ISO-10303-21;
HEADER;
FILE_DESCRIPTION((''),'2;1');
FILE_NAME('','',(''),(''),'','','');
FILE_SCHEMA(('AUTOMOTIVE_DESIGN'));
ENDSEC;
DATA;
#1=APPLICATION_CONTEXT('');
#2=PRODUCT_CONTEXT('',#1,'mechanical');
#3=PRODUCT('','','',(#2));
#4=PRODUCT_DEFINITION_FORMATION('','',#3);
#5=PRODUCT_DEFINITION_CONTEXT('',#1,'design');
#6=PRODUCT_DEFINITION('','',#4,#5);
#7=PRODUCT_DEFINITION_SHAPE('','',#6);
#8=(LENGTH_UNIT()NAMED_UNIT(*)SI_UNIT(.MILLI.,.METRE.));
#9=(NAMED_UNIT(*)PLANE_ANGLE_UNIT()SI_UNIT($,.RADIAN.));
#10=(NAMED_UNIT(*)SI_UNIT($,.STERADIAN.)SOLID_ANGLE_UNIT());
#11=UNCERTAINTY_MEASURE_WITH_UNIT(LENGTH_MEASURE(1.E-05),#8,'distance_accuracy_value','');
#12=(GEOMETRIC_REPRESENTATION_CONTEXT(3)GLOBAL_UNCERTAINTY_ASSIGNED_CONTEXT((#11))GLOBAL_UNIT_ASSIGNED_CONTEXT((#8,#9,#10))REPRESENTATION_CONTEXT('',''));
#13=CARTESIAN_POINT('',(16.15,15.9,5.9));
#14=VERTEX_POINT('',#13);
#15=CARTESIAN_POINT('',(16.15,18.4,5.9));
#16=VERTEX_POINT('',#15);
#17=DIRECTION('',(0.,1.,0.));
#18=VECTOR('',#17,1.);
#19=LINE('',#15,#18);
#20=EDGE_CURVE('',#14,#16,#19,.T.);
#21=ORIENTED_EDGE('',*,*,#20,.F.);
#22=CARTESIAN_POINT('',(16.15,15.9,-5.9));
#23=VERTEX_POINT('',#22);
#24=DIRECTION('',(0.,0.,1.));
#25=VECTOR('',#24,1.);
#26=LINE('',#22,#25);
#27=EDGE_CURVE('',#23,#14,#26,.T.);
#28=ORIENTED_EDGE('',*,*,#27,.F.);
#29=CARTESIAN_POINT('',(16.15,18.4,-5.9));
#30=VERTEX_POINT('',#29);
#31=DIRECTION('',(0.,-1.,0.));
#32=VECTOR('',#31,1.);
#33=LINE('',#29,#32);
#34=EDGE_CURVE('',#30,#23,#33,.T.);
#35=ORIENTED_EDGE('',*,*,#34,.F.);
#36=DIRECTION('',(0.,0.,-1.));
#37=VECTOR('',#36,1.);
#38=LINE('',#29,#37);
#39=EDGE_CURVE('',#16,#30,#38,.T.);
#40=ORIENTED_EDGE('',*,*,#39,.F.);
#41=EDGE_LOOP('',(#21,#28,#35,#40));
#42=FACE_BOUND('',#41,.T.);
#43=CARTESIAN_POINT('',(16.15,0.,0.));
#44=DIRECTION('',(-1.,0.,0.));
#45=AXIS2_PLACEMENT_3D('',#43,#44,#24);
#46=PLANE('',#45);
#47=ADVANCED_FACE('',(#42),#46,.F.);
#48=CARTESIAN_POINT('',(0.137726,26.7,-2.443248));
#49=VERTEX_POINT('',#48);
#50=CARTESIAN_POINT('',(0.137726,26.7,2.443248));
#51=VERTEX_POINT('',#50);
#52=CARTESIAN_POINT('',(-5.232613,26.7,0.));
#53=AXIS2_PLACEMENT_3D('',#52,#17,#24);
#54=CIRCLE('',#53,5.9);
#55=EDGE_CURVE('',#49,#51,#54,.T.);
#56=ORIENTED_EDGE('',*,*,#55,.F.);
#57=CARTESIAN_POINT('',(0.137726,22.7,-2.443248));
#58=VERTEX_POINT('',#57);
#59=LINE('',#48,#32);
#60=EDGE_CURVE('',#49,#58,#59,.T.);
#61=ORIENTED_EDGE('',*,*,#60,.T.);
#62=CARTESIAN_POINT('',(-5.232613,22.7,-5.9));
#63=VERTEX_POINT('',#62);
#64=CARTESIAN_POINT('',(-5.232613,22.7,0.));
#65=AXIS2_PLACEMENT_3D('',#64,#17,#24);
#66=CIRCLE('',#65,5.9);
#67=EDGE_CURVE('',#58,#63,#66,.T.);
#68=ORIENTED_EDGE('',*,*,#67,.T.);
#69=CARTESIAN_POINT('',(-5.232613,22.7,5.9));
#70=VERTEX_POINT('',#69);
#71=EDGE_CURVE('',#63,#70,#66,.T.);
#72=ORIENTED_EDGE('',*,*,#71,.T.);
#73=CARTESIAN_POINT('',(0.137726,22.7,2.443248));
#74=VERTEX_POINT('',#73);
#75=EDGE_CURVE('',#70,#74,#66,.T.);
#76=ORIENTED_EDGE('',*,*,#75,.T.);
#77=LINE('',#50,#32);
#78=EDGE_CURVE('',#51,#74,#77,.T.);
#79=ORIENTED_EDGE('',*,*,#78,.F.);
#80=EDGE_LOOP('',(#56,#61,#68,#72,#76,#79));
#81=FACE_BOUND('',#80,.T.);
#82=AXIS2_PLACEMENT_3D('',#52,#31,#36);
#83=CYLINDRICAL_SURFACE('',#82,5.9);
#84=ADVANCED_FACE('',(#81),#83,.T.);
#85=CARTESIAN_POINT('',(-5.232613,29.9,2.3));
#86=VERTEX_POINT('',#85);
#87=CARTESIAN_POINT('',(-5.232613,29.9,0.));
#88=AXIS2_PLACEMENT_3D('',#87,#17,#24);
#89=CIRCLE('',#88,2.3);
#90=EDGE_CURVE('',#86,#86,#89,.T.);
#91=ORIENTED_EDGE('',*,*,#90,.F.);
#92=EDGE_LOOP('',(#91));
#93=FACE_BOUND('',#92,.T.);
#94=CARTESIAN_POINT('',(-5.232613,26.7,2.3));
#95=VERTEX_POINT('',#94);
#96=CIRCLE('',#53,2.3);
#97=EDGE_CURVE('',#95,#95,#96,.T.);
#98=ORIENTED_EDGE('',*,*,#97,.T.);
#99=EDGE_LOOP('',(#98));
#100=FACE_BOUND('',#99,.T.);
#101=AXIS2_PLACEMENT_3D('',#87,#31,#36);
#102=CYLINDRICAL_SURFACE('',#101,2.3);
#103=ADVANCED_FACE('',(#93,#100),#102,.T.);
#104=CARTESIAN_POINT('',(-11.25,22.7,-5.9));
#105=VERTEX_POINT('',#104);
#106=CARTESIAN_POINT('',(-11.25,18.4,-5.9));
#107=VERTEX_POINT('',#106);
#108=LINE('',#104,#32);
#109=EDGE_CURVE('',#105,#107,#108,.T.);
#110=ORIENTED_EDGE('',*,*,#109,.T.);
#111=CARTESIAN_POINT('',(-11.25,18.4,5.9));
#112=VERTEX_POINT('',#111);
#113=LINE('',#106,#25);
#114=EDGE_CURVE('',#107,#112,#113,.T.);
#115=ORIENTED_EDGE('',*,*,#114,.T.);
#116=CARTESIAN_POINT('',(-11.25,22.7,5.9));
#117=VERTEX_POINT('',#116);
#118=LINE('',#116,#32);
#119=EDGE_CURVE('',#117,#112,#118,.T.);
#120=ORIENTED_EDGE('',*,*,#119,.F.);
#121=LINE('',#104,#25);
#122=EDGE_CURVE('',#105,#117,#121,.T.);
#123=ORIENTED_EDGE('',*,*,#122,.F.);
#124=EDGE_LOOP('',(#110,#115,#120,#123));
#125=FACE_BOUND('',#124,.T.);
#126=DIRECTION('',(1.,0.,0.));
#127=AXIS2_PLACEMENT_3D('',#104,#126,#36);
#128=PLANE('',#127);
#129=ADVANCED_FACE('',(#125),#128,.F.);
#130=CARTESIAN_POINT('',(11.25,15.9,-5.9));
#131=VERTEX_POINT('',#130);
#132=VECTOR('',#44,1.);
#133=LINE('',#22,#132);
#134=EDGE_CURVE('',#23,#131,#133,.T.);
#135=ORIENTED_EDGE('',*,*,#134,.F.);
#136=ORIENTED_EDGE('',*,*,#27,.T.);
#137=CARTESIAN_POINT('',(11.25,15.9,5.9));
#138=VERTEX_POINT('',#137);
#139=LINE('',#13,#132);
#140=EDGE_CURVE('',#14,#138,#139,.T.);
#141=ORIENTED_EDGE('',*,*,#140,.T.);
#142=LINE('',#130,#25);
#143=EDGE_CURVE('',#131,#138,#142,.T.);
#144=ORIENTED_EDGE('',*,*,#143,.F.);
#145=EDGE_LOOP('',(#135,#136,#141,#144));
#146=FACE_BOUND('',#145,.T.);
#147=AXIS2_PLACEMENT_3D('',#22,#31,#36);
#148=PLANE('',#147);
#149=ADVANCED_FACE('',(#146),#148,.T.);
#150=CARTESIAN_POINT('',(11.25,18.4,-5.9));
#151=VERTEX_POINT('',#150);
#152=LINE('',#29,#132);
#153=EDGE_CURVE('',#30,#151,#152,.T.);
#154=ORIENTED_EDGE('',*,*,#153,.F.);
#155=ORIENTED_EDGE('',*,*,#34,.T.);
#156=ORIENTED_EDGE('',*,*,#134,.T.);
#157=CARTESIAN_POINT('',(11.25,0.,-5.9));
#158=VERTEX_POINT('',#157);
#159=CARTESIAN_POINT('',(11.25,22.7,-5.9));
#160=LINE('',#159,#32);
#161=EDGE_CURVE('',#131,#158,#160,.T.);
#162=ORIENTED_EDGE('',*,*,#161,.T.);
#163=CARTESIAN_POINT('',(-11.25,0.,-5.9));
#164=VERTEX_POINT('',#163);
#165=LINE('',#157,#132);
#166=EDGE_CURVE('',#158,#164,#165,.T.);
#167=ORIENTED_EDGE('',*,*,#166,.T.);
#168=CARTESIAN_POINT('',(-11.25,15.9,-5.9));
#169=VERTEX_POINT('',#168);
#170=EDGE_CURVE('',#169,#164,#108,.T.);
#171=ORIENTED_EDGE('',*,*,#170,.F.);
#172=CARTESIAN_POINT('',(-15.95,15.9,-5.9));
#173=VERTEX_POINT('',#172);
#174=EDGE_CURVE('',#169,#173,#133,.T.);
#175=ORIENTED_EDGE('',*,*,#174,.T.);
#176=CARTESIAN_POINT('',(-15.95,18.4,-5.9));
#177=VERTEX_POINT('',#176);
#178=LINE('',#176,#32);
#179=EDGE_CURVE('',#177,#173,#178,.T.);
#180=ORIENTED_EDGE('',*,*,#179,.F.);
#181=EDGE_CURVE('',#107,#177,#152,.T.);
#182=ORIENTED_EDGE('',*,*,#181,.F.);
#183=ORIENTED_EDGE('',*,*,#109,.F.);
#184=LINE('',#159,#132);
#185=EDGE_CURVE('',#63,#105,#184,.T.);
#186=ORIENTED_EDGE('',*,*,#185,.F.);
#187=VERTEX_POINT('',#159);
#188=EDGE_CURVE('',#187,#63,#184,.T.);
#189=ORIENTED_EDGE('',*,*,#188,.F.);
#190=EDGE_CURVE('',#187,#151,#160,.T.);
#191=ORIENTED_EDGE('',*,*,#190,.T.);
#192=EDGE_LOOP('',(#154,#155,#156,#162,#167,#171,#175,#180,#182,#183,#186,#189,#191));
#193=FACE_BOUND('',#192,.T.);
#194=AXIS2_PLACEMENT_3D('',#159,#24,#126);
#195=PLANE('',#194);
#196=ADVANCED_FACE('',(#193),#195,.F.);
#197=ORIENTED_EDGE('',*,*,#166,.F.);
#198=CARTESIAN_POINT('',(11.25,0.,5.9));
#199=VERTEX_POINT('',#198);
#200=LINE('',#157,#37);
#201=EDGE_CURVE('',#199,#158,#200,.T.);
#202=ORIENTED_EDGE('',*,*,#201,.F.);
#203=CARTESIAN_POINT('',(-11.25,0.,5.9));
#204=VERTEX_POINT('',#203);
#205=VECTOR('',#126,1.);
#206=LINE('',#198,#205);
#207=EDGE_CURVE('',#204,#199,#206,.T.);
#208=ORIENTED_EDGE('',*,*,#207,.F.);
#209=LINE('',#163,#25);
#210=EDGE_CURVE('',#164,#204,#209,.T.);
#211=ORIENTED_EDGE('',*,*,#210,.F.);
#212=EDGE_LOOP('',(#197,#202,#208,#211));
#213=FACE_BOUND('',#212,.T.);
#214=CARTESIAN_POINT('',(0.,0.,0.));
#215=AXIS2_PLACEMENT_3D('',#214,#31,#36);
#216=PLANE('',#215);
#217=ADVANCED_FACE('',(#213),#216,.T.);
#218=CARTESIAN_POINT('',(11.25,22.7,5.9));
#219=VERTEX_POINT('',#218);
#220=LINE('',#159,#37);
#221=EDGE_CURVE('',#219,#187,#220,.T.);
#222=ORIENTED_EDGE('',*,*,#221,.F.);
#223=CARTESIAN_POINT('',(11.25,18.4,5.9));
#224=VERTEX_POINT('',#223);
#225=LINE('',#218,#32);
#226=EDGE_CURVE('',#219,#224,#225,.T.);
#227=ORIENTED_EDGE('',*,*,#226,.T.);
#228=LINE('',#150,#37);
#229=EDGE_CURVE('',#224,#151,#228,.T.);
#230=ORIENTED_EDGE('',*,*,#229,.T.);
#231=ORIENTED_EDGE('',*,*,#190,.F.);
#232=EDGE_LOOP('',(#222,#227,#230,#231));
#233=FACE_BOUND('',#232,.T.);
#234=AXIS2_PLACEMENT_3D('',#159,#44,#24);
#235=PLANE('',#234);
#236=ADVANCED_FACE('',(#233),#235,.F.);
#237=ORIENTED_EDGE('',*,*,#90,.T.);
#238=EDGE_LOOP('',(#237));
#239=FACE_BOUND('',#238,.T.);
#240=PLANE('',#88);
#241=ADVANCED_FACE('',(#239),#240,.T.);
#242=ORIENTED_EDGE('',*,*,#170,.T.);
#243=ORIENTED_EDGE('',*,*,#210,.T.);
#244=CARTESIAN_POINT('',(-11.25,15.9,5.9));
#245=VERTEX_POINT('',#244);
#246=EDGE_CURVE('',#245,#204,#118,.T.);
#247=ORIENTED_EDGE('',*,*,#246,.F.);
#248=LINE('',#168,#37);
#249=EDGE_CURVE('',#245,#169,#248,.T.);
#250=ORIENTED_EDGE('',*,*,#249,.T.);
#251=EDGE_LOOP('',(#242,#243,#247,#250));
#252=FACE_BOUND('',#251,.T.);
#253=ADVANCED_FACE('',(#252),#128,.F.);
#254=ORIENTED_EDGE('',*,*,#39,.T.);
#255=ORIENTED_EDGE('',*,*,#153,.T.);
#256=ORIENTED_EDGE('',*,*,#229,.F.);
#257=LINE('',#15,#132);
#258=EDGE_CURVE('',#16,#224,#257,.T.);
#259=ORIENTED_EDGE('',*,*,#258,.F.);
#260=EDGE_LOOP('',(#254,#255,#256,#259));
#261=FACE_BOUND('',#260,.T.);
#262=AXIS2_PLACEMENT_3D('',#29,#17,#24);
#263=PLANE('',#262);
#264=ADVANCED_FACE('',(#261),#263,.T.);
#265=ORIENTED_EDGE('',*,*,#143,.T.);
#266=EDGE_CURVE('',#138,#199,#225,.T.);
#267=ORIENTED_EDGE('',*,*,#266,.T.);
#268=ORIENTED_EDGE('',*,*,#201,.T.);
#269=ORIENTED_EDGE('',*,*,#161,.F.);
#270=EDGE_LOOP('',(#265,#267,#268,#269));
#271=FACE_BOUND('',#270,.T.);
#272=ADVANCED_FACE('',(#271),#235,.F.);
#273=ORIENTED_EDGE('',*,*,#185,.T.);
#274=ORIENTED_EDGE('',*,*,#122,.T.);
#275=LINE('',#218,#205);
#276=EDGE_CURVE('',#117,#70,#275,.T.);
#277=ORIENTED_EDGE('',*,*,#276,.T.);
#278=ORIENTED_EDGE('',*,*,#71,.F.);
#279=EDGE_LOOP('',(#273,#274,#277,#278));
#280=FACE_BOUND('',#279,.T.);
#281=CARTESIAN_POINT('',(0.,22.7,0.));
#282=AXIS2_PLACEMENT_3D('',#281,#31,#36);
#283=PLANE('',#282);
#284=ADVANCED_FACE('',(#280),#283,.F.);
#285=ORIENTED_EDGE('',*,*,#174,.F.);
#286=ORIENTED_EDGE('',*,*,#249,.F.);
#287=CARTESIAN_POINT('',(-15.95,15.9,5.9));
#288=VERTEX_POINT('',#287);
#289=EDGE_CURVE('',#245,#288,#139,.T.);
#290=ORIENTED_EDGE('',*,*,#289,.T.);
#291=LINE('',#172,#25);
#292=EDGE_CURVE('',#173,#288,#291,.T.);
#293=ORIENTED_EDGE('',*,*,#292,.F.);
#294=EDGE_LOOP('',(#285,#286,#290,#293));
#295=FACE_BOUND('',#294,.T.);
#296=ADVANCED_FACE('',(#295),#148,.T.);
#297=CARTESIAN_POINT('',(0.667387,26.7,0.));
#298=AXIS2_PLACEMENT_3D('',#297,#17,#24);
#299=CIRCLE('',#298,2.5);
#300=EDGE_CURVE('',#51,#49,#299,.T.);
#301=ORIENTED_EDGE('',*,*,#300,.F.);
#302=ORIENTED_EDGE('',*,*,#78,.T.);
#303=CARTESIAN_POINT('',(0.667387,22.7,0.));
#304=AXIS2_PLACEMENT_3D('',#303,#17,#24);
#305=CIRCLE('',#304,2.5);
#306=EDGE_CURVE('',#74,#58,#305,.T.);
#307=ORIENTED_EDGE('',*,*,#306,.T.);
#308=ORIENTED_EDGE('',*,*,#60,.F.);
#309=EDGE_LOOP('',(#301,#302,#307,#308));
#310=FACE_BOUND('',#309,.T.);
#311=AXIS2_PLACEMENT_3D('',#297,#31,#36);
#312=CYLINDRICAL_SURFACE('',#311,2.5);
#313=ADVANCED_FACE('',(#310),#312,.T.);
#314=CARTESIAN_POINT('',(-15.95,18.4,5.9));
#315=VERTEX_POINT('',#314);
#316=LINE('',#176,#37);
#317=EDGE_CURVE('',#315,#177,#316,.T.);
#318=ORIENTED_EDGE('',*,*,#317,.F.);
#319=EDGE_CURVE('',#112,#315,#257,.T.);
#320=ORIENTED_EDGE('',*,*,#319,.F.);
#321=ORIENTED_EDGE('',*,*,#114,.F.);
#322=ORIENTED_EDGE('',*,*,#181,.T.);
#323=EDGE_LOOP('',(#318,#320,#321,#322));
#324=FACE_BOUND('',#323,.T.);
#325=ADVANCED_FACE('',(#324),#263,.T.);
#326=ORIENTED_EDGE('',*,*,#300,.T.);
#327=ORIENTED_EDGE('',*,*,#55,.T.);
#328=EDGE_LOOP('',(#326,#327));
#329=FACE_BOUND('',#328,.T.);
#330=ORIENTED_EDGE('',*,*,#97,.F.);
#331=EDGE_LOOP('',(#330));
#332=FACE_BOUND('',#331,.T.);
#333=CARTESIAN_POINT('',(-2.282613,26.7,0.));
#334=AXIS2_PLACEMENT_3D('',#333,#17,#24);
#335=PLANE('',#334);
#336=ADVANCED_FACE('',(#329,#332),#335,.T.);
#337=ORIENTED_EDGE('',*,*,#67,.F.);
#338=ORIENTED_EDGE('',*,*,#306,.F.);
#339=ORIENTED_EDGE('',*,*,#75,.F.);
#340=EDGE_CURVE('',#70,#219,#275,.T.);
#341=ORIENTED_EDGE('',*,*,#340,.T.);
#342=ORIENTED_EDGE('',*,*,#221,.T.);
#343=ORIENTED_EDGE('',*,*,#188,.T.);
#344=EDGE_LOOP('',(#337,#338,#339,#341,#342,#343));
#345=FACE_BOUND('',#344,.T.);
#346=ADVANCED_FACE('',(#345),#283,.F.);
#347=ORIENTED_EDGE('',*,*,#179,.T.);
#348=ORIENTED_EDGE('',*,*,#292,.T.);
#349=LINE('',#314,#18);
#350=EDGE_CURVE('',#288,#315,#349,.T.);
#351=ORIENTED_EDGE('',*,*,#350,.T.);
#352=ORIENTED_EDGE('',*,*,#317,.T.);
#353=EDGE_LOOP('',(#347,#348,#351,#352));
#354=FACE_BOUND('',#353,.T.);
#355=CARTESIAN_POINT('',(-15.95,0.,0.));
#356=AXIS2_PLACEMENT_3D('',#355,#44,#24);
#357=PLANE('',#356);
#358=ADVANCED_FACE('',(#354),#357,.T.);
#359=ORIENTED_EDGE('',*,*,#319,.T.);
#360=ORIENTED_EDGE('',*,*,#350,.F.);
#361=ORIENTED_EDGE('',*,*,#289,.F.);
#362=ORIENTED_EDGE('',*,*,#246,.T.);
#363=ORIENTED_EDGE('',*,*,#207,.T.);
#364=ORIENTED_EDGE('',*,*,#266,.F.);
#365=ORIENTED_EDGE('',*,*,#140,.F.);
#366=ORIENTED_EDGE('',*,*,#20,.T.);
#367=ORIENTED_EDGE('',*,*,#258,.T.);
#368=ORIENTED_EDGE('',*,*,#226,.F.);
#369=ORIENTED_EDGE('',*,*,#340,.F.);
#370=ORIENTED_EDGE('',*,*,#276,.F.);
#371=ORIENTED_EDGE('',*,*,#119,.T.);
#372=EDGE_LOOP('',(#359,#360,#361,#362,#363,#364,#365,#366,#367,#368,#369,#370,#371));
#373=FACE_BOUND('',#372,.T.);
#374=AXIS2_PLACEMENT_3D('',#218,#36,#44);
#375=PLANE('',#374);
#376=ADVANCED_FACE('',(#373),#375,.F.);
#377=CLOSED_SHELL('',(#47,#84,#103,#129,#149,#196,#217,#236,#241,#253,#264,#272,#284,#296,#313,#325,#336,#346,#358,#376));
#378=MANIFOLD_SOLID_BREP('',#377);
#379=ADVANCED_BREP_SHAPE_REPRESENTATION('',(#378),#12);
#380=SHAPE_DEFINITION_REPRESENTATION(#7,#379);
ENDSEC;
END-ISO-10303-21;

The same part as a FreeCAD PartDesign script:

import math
import FreeCAD as App
import Part
import Sketcher

V = App.Vector

doc = App.newDocument("Part")
params = doc.addObject("Spreadsheet::Sheet", "Params")
for row, (alias, value) in enumerate([
    ("sketch1_width", "22.5 mm"),
    ("sketch1_height", "11.8 mm"),
    ("pad1_length", "22.7 mm"),
    ("sketch2_width", "2.5 mm"),
    ("sketch2_height", "11.8 mm"),
    ("pad2_length", "4.7 mm"),
    ("pad2_length2", "27.4 mm"),
    ("sketch3_radius", "5.9 mm"),
    ("sketch3_radius2", "2.5 mm"),
    ("pad3_length", "4 mm"),
    ("sketch4_diameter", "4.6 mm"),
    ("pad4_length", "3.2 mm"),
], start=1):
    params.set(f"A{row}", alias)
    params.set(f"B{row}", "=" + value)
    params.setAlias(f"B{row}", alias)

body = doc.addObject("PartDesign::Body", "Body")

# Sketch on XZ plane
sketch1 = body.newObject("Sketcher::SketchObject", "Sketch")
sketch1.AttachmentSupport = (doc.getObject("XZ_Plane"), [""])
sketch1.MapMode = "FlatFace"
sketch1.addGeometry([
    Part.LineSegment(V(-11, -6, 0), V(-11, 6, 0)),
    Part.LineSegment(V(-11, 6, 0), V(11, 6, 0)),
    Part.LineSegment(V(11, 6, 0), V(11, -6, 0)),
    Part.LineSegment(V(11, -6, 0), V(-11, -6, 0)),
], False)
sketch1.addConstraint([
    Sketcher.Constraint("Coincident", 0, 2, 1, 1),
    Sketcher.Constraint("Coincident", 1, 2, 2, 1),
    Sketcher.Constraint("Coincident", 2, 2, 3, 1),
    Sketcher.Constraint("Coincident", 3, 2, 0, 1),
    Sketcher.Constraint("Vertical", 0),
    Sketcher.Constraint("Horizontal", 1),
    Sketcher.Constraint("Vertical", 2),
    Sketcher.Constraint("Horizontal", 3),
    Sketcher.Constraint("Symmetric", 0, 2, 2, 2, -1, 1),
    Sketcher.Constraint("DistanceX", 1, 1, 1, 2, 22.5),
    Sketcher.Constraint("DistanceY", 0, 1, 0, 2, 11.8),
])
sketch1.setExpression("Constraints[9]", "Params.sketch1_width")
sketch1.setExpression("Constraints[10]", "Params.sketch1_height")
pad1 = body.newObject("PartDesign::Pad", "Pad")
pad1.Profile = sketch1
pad1.setExpression("Length", "Params.pad1_length")
pad1.Reversed = True

# Sketch on YZ plane
sketch2 = body.newObject("Sketcher::SketchObject", "Sketch001")
sketch2.AttachmentSupport = (doc.getObject("YZ_Plane"), [""])
sketch2.MapMode = "FlatFace"
sketch2.AttachmentOffset = App.Placement(V(0, 0, -11.25), App.Rotation())
sketch2.addGeometry([
    Part.LineSegment(V(18.4, -5.9, 0), V(15.9, -5.9, 0)),
    Part.LineSegment(V(15.9, -5.9, 0), V(15.9, 5.9, 0)),
    Part.LineSegment(V(15.9, 5.9, 0), V(18.4, 5.9, 0)),
    Part.LineSegment(V(18.4, 5.9, 0), V(18.4, -5.9, 0)),
], False)
sketch2.addConstraint([
    Sketcher.Constraint("Coincident", 0, 2, 1, 1),
    Sketcher.Constraint("Coincident", 1, 2, 2, 1),
    Sketcher.Constraint("Coincident", 2, 2, 3, 1),
    Sketcher.Constraint("Coincident", 3, 2, 0, 1),
    Sketcher.Constraint("Horizontal", 0),
    Sketcher.Constraint("Vertical", 1),
    Sketcher.Constraint("Horizontal", 2),
    Sketcher.Constraint("Vertical", 3),
    Sketcher.Constraint("DistanceX", 0, 2, 0, 1, 2.5),
    Sketcher.Constraint("DistanceY", 1, 1, 1, 2, 11.8),
    Sketcher.Constraint("DistanceX", -1, 1, 0, 2, 15.9),
    Sketcher.Constraint("DistanceY", 0, 2, -1, 1, 5.9),
])
sketch2.setExpression("Constraints[8]", "Params.sketch2_width")
sketch2.setExpression("Constraints[9]", "Params.sketch2_height")
pad2 = body.newObject("PartDesign::Pad", "Pad001")
pad2.Profile = sketch2
pad2.Type = "TwoLengths"
pad2.setExpression("Length", "Params.pad2_length")
pad2.setExpression("Length2", "Params.pad2_length2")
pad2.Reversed = True

# Sketch on XZ plane
sketch3 = body.newObject("Sketcher::SketchObject", "Sketch002")
sketch3.AttachmentSupport = (doc.getObject("XZ_Plane"), [""])
sketch3.MapMode = "FlatFace"
sketch3.AttachmentOffset = App.Placement(V(0, 0, -22.7), App.Rotation())
sketch3.addGeometry([
    Part.ArcOfCircle(Part.Circle(V(-5.2, 0, 0), V(0, 0, 1), 5.9), math.radians(24), math.radians(336)),
    Part.ArcOfCircle(Part.Circle(V(0.7, 0, 0), V(0, 0, 1), 2.5), math.radians(-102), math.radians(102)),
], False)
sketch3.addConstraint([
    Sketcher.Constraint("Coincident", 0, 1, 1, 2),
    Sketcher.Constraint("Coincident", 1, 1, 0, 2),
    Sketcher.Constraint("Symmetric", 0, 1, 1, 1, -1),
    Sketcher.Constraint("Radius", 0, 5.9),
    Sketcher.Constraint("Radius", 1, 2.5),
    Sketcher.Constraint("DistanceX", 0, 3, 1, 3, 5.9),
    Sketcher.Constraint("DistanceX", 0, 3, -1, 1, 5.232613),
])
sketch3.setExpression("Constraints[3]", "Params.sketch3_radius")
sketch3.setExpression("Constraints[4]", "Params.sketch3_radius2")
pad3 = body.newObject("PartDesign::Pad", "Pad002")
pad3.Profile = sketch3
pad3.setExpression("Length", "Params.pad3_length")
pad3.Reversed = True

# Sketch on XZ plane
sketch4 = body.newObject("Sketcher::SketchObject", "Sketch003")
sketch4.AttachmentSupport = (doc.getObject("XZ_Plane"), [""])
sketch4.MapMode = "FlatFace"
sketch4.AttachmentOffset = App.Placement(V(0, 0, -26.7), App.Rotation())
sketch4.addGeometry(Part.Circle(V(-5.2, 0, 0), V(0, 0, 1), 2.3), False)
sketch4.addConstraint([
    Sketcher.Constraint("PointOnObject", 0, 3, -1),
    Sketcher.Constraint("Diameter", 0, 4.6),
    Sketcher.Constraint("DistanceX", 0, 3, -1, 1, 5.232613),
])
sketch4.setExpression("Constraints[1]", "Params.sketch4_diameter")
pad4 = body.newObject("PartDesign::Pad", "Pad003")
pad4.Profile = sketch4
pad4.setExpression("Length", "Params.pad4_length")
pad4.Reversed = True

doc.recompute()
